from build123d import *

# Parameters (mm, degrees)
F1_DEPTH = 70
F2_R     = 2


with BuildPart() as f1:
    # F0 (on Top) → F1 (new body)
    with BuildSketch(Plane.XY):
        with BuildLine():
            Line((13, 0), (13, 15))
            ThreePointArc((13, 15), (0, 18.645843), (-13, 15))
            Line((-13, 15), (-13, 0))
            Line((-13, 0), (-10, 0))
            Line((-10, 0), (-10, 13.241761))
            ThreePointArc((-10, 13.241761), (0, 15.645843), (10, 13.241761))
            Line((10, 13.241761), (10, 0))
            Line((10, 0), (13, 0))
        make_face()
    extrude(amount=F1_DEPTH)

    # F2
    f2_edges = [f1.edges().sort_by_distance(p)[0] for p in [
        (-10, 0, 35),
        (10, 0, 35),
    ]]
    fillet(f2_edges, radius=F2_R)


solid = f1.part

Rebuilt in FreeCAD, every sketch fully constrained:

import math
import FreeCAD as App
import Part
import Sketcher
from FreeCAD import Vector
Q = App.Units.Quantity


def edges_at(feature, points):
    """Names of the edges that pass closest to the given points."""
    edges = feature.Shape.Edges
    near = lambda p: min(range(len(edges)), key=lambda i: edges[i].distToShape(Part.Vertex(*p))[0])
    return sorted({f"Edge{near(p) + 1}" for p in points})

doc = App.newDocument("Part")
params = doc.addObject("Spreadsheet::Sheet", "Params")
for row, (alias, value) in enumerate([
    ("sketch1_radius", "22 mm"),
    ("sketch1_width", "3 mm"),
    ("sketch1_height", "15 mm"),
    ("pad1_length", "70 mm"),
    ("fillet_radius", "2 mm"),
], start=1):
    params.set(f"A{row}", alias)
    params.set(f"B{row}", "=" + value)
    params.setAlias(f"B{row}", alias)

body = doc.addObject("PartDesign::Body", "Body")

sketch1 = body.newObject("Sketcher::SketchObject", "Sketch")
sketch1.AttachmentSupport = (doc.getObject("XY_Plane"), [""])
sketch1.MapMode = "FlatFace"
sketch1.addGeometry([
    Part.LineSegment(Vector(13, 0, 0), Vector(13, 15, 0)),
    Part.ArcOfCircle(Part.Circle(Vector(0, -6.35416, 0), Vector(0, 0, 1), 25.000003), math.radians(58.667753), math.radians(121.332247)),
    Part.LineSegment(Vector(-13, 15, 0), Vector(-13, 0, 0)),
    Part.LineSegment(Vector(-13, 0, 0), Vector(-10, 0, 0)),
    Part.LineSegment(Vector(-10, 0, 0), Vector(-10, 13.241761, 0)),
    Part.ArcOfCircle(Part.Circle(Vector(0, -6.354157, 0), Vector(0, 0, 1), 22), math.radians(62.964309), math.radians(117.035691)),
    Part.LineSegment(Vector(10, 13.241761, 0), Vector(10, 0, 0)),
    Part.LineSegment(Vector(10, 0, 0), Vector(13, 0, 0)),
], False)
sketch1.addConstraint([
    Sketcher.Constraint("Coincident", 0, 2, 1, 1),
    Sketcher.Constraint("Coincident", 1, 2, 2, 1),
    Sketcher.Constraint("Coincident", 2, 2, 3, 1),
    Sketcher.Constraint("Coincident", 3, 2, 4, 1),
    Sketcher.Constraint("Coincident", 4, 2, 5, 2),
    Sketcher.Constraint("Coincident", 5, 1, 6, 1),
    Sketcher.Constraint("Coincident", 6, 2, 7, 1),
    Sketcher.Constraint("Coincident", 7, 2, 0, 1),
    Sketcher.Constraint("Vertical", 0),
    Sketcher.Constraint("Vertical", 2),
    Sketcher.Constraint("Horizontal", 3),
    Sketcher.Constraint("Vertical", 4),
    Sketcher.Constraint("Vertical", 6),
    Sketcher.Constraint("Horizontal", 7),
    Sketcher.Constraint("Coincident", 5, 3, 1, 3),
    Sketcher.Constraint("Symmetric", 3, 2, 6, 2, -1, 1),
    Sketcher.Constraint("Symmetric", 0, 2, 1, 2, -2),
    Sketcher.Constraint("PointOnObject", 2, 2, -1),
    Sketcher.Constraint("Radius", 5, Q("22 mm")),
    Sketcher.Constraint("DistanceX", 3, 1, 3, 2, Q("3 mm")),
    Sketcher.Constraint("DistanceY", 0, 1, 0, 2, Q("15 mm")),
    Sketcher.Constraint("DistanceX", -1, 1, 0, 2, Q("13 mm")),
    Sketcher.Constraint("Radius", 1, Q("25.000003 mm")),
])
sketch1.setExpression("Constraints[18]", "Params.sketch1_radius")
sketch1.setExpression("Constraints[19]", "Params.sketch1_width")
sketch1.setExpression("Constraints[20]", "Params.sketch1_height")
pad1 = body.newObject("PartDesign::Pad", "Pad")
pad1.Profile = sketch1
pad1.setExpression("Length", "Params.pad1_length")
doc.recompute()

fillet = body.newObject("PartDesign::Fillet", "Fillet")
fillet.Base = (pad1, edges_at(pad1, [(-10, 0, 35), (10, 0, 35)]))
fillet.setExpression("Radius", "Params.fillet_radius")

doc.recompute()
